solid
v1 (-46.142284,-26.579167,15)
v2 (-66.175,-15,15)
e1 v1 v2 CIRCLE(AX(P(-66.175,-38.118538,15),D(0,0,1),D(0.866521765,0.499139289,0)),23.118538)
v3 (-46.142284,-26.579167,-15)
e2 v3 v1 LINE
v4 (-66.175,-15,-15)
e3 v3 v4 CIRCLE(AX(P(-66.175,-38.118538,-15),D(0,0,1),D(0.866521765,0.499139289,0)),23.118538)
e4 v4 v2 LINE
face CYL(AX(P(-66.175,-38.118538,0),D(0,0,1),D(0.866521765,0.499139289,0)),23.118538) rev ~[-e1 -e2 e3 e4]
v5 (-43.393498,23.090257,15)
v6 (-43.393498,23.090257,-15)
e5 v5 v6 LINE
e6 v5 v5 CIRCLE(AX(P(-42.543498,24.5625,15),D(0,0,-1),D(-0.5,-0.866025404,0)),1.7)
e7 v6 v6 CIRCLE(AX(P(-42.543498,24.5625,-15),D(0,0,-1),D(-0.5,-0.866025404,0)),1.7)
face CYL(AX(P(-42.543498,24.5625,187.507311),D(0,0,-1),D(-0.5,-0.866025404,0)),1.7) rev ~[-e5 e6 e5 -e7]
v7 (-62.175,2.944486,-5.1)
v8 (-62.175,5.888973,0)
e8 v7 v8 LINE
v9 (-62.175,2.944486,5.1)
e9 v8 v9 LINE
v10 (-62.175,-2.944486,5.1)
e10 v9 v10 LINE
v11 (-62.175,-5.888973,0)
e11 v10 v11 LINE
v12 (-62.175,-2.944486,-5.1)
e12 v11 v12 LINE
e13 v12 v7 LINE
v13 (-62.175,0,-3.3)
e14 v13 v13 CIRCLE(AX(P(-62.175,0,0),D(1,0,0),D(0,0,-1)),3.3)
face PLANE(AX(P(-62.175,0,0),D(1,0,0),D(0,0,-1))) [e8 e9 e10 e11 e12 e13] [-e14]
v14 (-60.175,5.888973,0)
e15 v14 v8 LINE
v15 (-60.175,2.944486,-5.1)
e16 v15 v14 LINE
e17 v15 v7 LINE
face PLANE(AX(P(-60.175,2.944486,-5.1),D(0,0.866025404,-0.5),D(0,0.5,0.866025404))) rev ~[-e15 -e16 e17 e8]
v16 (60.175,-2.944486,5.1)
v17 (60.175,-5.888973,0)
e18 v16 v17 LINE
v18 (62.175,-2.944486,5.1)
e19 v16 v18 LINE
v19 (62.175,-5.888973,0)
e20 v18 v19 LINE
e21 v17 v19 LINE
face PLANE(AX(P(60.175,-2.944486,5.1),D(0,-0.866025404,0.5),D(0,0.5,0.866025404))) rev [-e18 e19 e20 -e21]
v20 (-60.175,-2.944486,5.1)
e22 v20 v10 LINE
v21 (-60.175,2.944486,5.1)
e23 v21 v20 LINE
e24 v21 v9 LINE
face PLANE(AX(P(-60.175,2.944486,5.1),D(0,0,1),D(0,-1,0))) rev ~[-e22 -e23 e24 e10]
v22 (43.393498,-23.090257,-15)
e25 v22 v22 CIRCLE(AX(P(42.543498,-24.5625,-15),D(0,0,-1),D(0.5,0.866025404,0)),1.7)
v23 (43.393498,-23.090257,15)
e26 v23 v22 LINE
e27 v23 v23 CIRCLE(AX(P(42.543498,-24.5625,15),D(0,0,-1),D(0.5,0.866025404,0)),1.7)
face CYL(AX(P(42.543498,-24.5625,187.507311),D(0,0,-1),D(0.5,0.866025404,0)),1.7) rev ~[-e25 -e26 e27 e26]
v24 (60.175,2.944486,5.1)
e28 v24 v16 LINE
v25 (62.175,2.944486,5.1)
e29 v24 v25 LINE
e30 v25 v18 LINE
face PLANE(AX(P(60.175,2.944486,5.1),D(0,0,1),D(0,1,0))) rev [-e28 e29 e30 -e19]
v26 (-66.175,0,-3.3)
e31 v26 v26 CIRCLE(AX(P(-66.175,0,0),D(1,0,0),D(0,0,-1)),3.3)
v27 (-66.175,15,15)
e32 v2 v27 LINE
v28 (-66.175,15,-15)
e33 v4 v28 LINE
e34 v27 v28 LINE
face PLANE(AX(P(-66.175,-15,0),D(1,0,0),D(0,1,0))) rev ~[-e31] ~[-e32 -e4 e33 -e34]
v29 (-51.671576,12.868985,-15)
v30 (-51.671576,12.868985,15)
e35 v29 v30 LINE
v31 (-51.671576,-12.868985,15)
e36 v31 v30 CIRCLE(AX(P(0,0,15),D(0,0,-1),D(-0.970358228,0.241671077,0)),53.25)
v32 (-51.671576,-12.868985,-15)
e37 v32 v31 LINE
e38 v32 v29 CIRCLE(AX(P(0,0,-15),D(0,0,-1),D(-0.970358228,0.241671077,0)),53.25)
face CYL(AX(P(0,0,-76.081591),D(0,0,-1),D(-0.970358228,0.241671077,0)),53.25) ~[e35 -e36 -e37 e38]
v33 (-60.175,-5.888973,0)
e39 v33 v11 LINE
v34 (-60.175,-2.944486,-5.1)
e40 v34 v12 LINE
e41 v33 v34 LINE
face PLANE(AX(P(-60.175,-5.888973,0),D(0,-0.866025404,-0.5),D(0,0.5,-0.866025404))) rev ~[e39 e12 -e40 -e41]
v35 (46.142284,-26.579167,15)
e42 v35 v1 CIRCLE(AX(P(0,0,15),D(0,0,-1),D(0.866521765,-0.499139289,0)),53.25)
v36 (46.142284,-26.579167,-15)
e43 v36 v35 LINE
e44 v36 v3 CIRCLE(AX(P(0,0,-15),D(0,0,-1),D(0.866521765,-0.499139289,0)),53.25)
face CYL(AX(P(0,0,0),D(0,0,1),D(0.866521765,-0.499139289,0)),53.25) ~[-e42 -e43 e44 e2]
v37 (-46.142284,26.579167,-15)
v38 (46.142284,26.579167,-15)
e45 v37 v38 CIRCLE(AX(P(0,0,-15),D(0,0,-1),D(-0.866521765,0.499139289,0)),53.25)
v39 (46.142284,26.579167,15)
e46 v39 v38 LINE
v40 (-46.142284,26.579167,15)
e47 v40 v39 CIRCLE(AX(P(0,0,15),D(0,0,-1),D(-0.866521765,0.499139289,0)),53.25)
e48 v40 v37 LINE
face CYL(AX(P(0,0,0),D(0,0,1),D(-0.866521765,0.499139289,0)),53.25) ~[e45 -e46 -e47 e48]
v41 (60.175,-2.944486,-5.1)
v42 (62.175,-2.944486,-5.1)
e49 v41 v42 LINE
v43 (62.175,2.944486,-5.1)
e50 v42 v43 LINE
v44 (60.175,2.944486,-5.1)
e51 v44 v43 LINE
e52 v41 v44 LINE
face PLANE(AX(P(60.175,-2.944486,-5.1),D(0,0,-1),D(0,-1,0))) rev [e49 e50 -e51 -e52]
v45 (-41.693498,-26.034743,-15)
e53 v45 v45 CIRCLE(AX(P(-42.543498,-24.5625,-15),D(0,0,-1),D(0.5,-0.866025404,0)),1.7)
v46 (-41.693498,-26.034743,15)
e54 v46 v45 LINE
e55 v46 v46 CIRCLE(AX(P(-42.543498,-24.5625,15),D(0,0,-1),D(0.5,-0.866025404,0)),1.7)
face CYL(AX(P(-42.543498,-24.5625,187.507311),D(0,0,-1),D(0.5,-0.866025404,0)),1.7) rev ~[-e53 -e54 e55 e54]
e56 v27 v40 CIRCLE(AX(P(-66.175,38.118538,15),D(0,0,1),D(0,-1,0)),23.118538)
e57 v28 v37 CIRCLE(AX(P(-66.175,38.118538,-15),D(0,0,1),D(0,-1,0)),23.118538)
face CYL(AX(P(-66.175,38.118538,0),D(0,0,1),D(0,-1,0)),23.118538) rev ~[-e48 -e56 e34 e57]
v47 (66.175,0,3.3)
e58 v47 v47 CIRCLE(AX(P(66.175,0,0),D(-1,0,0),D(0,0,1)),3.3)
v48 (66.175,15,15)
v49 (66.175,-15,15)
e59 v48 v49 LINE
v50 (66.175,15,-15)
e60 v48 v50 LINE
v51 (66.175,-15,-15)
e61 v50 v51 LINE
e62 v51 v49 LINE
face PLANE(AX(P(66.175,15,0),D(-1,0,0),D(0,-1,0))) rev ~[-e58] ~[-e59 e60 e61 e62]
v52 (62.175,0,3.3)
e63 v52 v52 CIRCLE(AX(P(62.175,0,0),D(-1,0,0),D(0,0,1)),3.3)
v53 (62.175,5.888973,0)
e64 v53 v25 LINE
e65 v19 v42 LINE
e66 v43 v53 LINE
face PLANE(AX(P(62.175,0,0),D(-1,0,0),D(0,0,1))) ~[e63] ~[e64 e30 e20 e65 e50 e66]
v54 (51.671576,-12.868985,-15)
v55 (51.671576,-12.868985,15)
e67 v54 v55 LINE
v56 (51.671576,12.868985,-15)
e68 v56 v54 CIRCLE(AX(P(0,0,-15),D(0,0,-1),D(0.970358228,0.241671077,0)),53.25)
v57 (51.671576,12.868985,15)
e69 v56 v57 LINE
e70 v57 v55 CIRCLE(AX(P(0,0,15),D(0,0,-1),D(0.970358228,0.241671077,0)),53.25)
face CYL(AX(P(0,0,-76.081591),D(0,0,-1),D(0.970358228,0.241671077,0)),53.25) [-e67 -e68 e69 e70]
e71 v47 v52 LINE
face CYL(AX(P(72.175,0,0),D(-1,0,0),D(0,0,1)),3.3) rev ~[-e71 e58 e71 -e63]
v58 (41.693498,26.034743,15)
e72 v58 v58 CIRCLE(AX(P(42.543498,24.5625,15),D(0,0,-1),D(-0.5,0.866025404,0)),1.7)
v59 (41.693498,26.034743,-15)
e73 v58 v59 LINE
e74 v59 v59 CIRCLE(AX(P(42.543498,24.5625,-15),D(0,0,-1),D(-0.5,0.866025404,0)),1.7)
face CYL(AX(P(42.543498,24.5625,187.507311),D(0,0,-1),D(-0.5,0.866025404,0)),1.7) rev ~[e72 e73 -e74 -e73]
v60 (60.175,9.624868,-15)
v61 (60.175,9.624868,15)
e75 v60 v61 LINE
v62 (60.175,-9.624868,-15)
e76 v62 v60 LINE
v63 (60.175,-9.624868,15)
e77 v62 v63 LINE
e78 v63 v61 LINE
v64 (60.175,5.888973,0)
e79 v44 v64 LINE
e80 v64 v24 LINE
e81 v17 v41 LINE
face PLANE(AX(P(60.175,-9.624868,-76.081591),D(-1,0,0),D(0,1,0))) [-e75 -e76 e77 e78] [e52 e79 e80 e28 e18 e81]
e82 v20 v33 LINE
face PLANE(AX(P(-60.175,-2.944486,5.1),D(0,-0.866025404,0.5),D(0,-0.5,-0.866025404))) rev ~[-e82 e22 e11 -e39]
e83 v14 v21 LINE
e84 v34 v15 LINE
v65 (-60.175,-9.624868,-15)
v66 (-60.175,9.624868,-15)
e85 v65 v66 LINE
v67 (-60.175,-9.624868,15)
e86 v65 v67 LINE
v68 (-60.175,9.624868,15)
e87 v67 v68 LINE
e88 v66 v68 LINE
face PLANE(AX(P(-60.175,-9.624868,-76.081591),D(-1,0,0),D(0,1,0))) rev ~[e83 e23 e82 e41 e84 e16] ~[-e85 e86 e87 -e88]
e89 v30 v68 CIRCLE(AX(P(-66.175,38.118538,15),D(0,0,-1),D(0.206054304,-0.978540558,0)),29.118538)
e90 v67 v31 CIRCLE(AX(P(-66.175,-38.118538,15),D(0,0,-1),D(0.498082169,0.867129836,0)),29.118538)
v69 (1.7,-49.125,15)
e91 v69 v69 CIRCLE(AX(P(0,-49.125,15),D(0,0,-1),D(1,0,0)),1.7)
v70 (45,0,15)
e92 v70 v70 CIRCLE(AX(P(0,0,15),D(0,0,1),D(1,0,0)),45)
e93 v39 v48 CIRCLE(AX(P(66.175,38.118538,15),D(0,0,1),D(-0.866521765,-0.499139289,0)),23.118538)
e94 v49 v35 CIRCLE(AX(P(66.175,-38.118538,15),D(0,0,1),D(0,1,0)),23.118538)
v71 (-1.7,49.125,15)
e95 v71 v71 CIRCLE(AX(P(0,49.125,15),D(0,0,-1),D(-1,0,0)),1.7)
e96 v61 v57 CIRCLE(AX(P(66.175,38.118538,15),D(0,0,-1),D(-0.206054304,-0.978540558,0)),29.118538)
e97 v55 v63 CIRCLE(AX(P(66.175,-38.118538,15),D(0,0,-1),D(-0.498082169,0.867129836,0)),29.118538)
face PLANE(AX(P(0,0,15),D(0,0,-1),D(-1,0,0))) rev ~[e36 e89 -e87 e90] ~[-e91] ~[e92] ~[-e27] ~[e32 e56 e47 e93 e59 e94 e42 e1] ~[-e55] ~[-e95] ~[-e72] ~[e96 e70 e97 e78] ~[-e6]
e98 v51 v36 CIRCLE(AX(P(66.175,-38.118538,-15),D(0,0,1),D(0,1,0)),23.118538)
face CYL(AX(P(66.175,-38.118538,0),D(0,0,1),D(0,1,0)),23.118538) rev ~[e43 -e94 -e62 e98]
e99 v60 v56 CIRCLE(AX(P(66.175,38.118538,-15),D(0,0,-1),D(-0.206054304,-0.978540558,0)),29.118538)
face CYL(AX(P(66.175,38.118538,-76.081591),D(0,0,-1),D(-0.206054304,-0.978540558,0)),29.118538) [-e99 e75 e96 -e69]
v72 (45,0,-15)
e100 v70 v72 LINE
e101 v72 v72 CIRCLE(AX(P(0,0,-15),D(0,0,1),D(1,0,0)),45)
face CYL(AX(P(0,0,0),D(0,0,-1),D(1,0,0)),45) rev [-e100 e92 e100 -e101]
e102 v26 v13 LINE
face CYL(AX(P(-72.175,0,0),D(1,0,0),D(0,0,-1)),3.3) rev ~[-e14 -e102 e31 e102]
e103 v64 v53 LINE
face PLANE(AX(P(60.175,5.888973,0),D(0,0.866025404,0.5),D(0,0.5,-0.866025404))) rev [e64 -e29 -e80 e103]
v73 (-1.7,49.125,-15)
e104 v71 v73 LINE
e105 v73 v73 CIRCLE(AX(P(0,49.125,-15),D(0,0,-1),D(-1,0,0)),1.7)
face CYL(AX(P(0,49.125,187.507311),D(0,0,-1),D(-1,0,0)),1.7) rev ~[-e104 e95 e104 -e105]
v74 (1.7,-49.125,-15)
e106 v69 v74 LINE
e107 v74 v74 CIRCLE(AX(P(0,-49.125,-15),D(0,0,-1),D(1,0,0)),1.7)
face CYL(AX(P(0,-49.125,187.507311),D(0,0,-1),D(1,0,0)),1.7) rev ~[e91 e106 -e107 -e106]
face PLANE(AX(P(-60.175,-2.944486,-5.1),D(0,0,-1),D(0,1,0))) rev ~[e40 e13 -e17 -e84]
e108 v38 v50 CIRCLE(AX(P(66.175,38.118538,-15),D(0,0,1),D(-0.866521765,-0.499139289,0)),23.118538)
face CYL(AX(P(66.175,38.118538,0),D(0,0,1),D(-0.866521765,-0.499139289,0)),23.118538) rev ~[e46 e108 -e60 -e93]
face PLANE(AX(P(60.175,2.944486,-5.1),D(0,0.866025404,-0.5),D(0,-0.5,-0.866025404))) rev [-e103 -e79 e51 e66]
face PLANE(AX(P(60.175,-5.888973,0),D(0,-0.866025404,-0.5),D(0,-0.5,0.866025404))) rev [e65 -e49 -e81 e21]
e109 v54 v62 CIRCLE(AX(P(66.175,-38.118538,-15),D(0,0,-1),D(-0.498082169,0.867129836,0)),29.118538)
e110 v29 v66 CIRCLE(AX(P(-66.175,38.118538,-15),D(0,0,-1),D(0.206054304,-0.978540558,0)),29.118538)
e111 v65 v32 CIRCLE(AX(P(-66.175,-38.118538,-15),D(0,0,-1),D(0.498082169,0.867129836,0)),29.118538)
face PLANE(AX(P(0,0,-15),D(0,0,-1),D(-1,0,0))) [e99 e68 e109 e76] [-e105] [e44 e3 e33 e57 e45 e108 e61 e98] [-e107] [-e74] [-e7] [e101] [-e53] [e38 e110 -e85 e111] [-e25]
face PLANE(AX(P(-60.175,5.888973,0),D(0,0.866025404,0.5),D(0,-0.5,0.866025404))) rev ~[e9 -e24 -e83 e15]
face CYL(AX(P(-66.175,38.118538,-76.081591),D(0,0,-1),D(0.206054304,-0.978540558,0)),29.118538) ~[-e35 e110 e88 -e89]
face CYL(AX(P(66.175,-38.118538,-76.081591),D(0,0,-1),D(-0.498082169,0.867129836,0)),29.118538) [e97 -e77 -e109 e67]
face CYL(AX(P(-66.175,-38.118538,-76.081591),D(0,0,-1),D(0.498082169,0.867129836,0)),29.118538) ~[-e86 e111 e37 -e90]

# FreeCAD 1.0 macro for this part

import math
import FreeCAD as App
import Part
import Sketcher

V = App.Vector
Q = App.Units.Quantity


def add_polygon(sketch, points):
    """Adds a closed chain of lines whose ends are joined by coincident constraints."""
    first, n = sketch.GeometryCount, len(points)
    for a, b in zip(points, points[1:] + points[:1]):
        sketch.addGeometry(Part.LineSegment(App.Vector(*a, 0), App.Vector(*b, 0)), False)
    for i in range(n):
        sketch.addConstraint(Sketcher.Constraint("Coincident", first + i, 2, first + (i + 1) % n, 1))

doc = App.newDocument("Part")
params = doc.addObject("Spreadsheet::Sheet", "Params")
for row, (alias, value) in enumerate([
    ("sketch1_diameter", "90 mm"),
    ("sketch1_height", "30 mm"),
    ("sketch1_radius", "53.25 mm"),
    ("pad1_length", "30 mm"),
    ("sketch2_radius", "53.25 mm"),
    ("sketch3_diameter", "6.6 mm"),
    ("hole_diameter", "6.6 mm"),
    ("hole_depth", "6 mm"),
    ("sketch4_diameter", "6.6 mm"),
    ("hole2_diameter", "6.6 mm"),
    ("hole2_depth", "6 mm"),
    ("sketch5_diameter", "3.4 mm"),
    ("hole3_diameter", "3.4 mm"),
    ("pocket2_length", "2 mm"),
], start=1):
    params.set(f"A{row}", alias)
    params.set(f"B{row}", "=" + value)
    params.setAlias(f"B{row}", alias)

body = doc.addObject("PartDesign::Body", "Body")

# Sketch on XY plane
sketch1 = body.newObject("Sketcher::SketchObject", "Sketch")
sketch1.AttachmentSupport = (doc.getObject("XY_Plane"), [""])
sketch1.MapMode = "FlatFace"
sketch1.addGeometry([
    Part.LineSegment(V(-66.175, 15, 0), V(-66.175, -15, 0)),  # 0
    Part.ArcOfCircle(Part.Circle(V(-66.175, -38.118538, 0), V(0, 0, 1), 23.118538), math.radians(29.943072), math.radians(90)),  # 1
    Part.ArcOfCircle(Part.Circle(V(0, 0, 0), V(0, 0, 1), 53.25), math.radians(-150.056928), math.radians(-29.943072)),  # 2
    Part.ArcOfCircle(Part.Circle(V(66.175, -38.118538, 0), V(0, 0, 1), 23.118538), math.radians(90), math.radians(150.056928)),  # 3
    Part.LineSegment(V(66.175, -15, 0), V(66.175, 15, 0)),  # 4
    Part.ArcOfCircle(Part.Circle(V(66.175, 38.118538, 0), V(0, 0, 1), 23.118538), math.radians(-150.056928), math.radians(-90)),  # 5
    Part.ArcOfCircle(Part.Circle(V(0, 0, 0), V(0, 0, 1), 53.25), math.radians(29.943072), math.radians(150.056928)),  # 6
    Part.ArcOfCircle(Part.Circle(V(-66.175, 38.118538, 0), V(0, 0, 1), 23.118538), math.radians(-90), math.radians(-29.943072)),  # 7
    Part.Circle(V(0, 0, 0), V(0, 0, 1), 45),  # 8
], False)
sketch1.addConstraint([
    Sketcher.Constraint("Coincident", 0, 2, 1, 2),
    Sketcher.Constraint("Tangent", 1, 1, 2, 1),
    Sketcher.Constraint("Tangent", 2, 2, 3, 2),
    Sketcher.Constraint("Coincident", 3, 1, 4, 1),
    Sketcher.Constraint("Coincident", 4, 2, 5, 2),
    Sketcher.Constraint("Tangent", 5, 1, 6, 1),
    Sketcher.Constraint("Tangent", 6, 2, 7, 2),
    Sketcher.Constraint("Coincident", 7, 1, 0, 1),
    Sketcher.Constraint("Vertical", 0),
    Sketcher.Constraint("Vertical", 4),
    Sketcher.Constraint("Coincident", 2, 3, -1, 1),
    Sketcher.Constraint("Coincident", 6, 3, -1, 1),
    Sketcher.Constraint("Coincident", 8, 3, -1, 1),
    Sketcher.Constraint("Equal", 1, 3),
    Sketcher.Constraint("Equal", 3, 5),
    Sketcher.Constraint("Equal", 2, 6),
    Sketcher.Constraint("Equal", 5, 7),
    Sketcher.Constraint("Symmetric", 0, 2, 4, 2, -1, 1),
    Sketcher.Constraint("Horizontal", 1, 3, 3, 3),
    Sketcher.Constraint("Horizontal", 5, 3, 7, 3),
    Sketcher.Constraint("Vertical", 7, 3, 0, 2),
    Sketcher.Constraint("Diameter", 8, 90.0),
    Sketcher.Constraint("DistanceY", 0, 2, 0, 1, 30.0),
    Sketcher.Constraint("Radius", 2, 53.25),
    Sketcher.Constraint("DistanceX", 1, 3, 3, 3, 132.35),
])
sketch1.setExpression("Constraints[21]", "Params.sketch1_diameter")
sketch1.setExpression("Constraints[22]", "Params.sketch1_height")
sketch1.setExpression("Constraints[23]", "Params.sketch1_radius")
pad1 = body.newObject("PartDesign::Pad", "Pad")
pad1.Profile = sketch1
pad1.setExpression("Length", "Params.pad1_length")
pad1.Midplane = True

# Sketch on XY plane
sketch2 = body.newObject("Sketcher::SketchObject", "Sketch001")
sketch2.AttachmentSupport = (doc.getObject("XY_Plane"), [""])
sketch2.MapMode = "FlatFace"
sketch2.AttachmentOffset = App.Placement(V(0, 0, 15), App.Rotation())
sketch2.addGeometry([
    Part.LineSegment(V(-60.175, 9.624868, 0), V(-60.175, -9.624868, 0)),  # 0
    Part.ArcOfCircle(Part.Circle(V(-66.175, -38.118538, 0), V(0, 0, 1), 29.118538), math.radians(60.126802), math.radians(78.108776)),  # 1
    Part.ArcOfCircle(Part.Circle(V(0, 0, 0), V(0, 0, 1), 53.25), math.radians(166.01481), math.radians(193.98519)),  # 2
    Part.ArcOfCircle(Part.Circle(V(-66.175, 38.118538, 0), V(0, 0, 1), 29.118538), math.radians(-78.108776), math.radians(-60.126802)),  # 3
    Part.LineSegment(V(60.175, -9.624868, 0), V(60.175, 9.624868, 0)),  # 4
    Part.ArcOfCircle(Part.Circle(V(66.175, 38.118538, 0), V(0, 0, 1), 29.118538), math.radians(-119.873198), math.radians(-101.891224)),  # 5
    Part.ArcOfCircle(Part.Circle(V(0, 0, 0), V(0, 0, 1), 53.25), math.radians(-13.98519), math.radians(13.98519)),  # 6
    Part.ArcOfCircle(Part.Circle(V(66.175, -38.118538, 0), V(0, 0, 1), 29.118538), math.radians(101.891224), math.radians(119.873198)),  # 7
], False)
sketch2.addConstraint([
    Sketcher.Constraint("Coincident", 0, 2, 1, 2),
    Sketcher.Constraint("Coincident", 1, 1, 2, 2),
    Sketcher.Constraint("Coincident", 2, 1, 3, 2),
    Sketcher.Constraint("Coincident", 3, 1, 0, 1),
    Sketcher.Constraint("Coincident", 4, 2, 5, 2),
    Sketcher.Constraint("Coincident", 5, 1, 6, 2),
    Sketcher.Constraint("Coincident", 6, 1, 7, 2),
    Sketcher.Constraint("Coincident", 7, 1, 4, 1),
    Sketcher.Constraint("Vertical", 0),
    Sketcher.Constraint("Vertical", 4),
    Sketcher.Constraint("Coincident", 2, 3, -1, 1),
    Sketcher.Constraint("Coincident", 6, 3, -1, 1),
    Sketcher.Constraint("Equal", 1, 3),
    Sketcher.Constraint("Equal", 3, 5),
    Sketcher.Constraint("Equal", 2, 6),
    Sketcher.Constraint("Equal", 5, 7),
    Sketcher.Constraint("Symmetric", 1, 3, 5, 3, -1, 1),
    Sketcher.Constraint("Symmetric", 3, 3, 7, 3, -1, 1),
    Sketcher.Constraint("Symmetric", 3, 3, 5, 3, -2),
    Sketcher.Constraint("Horizontal", 3, 1, 4, 2),
    Sketcher.Constraint("Radius", 2, 53.25),
    Sketcher.Constraint("DistanceX", 1, 3, 0, 2, 6.0),
    Sketcher.Constraint("DistanceX", 3, 3, 5, 3, 132.35),
    Sketcher.Constraint("Radius", 1, 29.118538),
    Sketcher.Constraint("DistanceY", 0, 2, 0, 1, 19.249735),
])
sketch2.setExpression("Constraints[20]", "Params.sketch2_radius")
pocket1 = body.newObject("PartDesign::Pocket", "Pocket")
pocket1.Profile = sketch2
pocket1.Type = "ThroughAll"
pocket1.Midplane = True

# Sketch on YZ plane
sketch3 = body.newObject("Sketcher::SketchObject", "Sketch002")
sketch3.AttachmentSupport = (doc.getObject("YZ_Plane"), [""])
sketch3.MapMode = "FlatFace"
sketch3.AttachmentOffset = App.Placement(V(0, 0, -66.175), App.Rotation())
sketch3.addGeometry(Part.Circle(V(0, 0, 0), V(0, 0, 1), 3.3), False)
sketch3.addConstraint([
    Sketcher.Constraint("Coincident", 0, 3, -1, 1),
    Sketcher.Constraint("Diameter", 0, 6.6),
])
sketch3.setExpression("Constraints[1]", "Params.sketch3_diameter")
doc.recompute()
hole = body.newObject("PartDesign::Hole", "Hole")
hole.Profile = sketch3
hole.ThreadType = "None"
hole.setExpression("Diameter", "Params.hole_diameter")
hole.DepthType = "Dimension"
hole.setExpression("Depth", "Params.hole_depth")
hole.DrillPoint = "Angled"
hole.DrillPointAngle = 118
hole.Reversed = True

# Sketch on YZ plane
sketch4 = body.newObject("Sketcher::SketchObject", "Sketch003")
sketch4.AttachmentSupport = (doc.getObject("YZ_Plane"), [""])
sketch4.MapMode = "FlatFace"
sketch4.AttachmentOffset = App.Placement(V(0, 0, 66.175), App.Rotation())
sketch4.addGeometry(Part.Circle(V(0, 0, 0), V(0, 0, 1), 3.3), False)
sketch4.addConstraint([
    Sketcher.Constraint("Coincident", 0, 3, -1, 1),
    Sketcher.Constraint("Diameter", 0, 6.6),
])
sketch4.setExpression("Constraints[1]", "Params.sketch4_diameter")
doc.recompute()
hole2 = body.newObject("PartDesign::Hole", "Hole001")
hole2.Profile = sketch4
hole2.ThreadType = "None"
hole2.setExpression("Diameter", "Params.hole2_diameter")
hole2.DepthType = "Dimension"
hole2.setExpression("Depth", "Params.hole2_depth")
hole2.DrillPoint = "Angled"
hole2.DrillPointAngle = 118

# Sketch on XY plane
sketch5 = body.newObject("Sketcher::SketchObject", "Sketch004")
sketch5.AttachmentSupport = (doc.getObject("XY_Plane"), [""])
sketch5.MapMode = "FlatFace"
sketch5.AttachmentOffset = App.Placement(V(0, 0, 15), App.Rotation())
sketch5.addGeometry(Part.Circle(V(0, 49.125, 0), V(0, 0, 1), 1.7), False)
sketch5.addConstraint([
    Sketcher.Constraint("PointOnObject", 0, 3, -2),
    Sketcher.Constraint("Diameter", 0, 3.4),
    Sketcher.Constraint("DistanceY", -1, 1, 0, 3, 49.125),
])
sketch5.setExpression("Constraints[1]", "Params.sketch5_diameter")
doc.recompute()
hole3 = body.newObject("PartDesign::Hole", "Hole002")
hole3.Profile = sketch5
hole3.ThreadType = "None"
hole3.setExpression("Diameter", "Params.hole3_diameter")
hole3.DepthType = "ThroughAll"
doc.recompute()

polarpattern = body.newObject("PartDesign::PolarPattern", "PolarPattern")
polarpattern.Originals = [hole3]
polarpattern.Axis = (doc.getObject("Z_Axis"), [""])
polarpattern.Angle = 360
polarpattern.Occurrences = 6
body.Tip = polarpattern

# Sketch on YZ plane
sketch6 = body.newObject("Sketcher::SketchObject", "Sketch005")
sketch6.AttachmentSupport = (doc.getObject("YZ_Plane"), [""])
sketch6.MapMode = "FlatFace"
sketch6.AttachmentOffset = App.Placement(V(0, 0, -60.175), App.Rotation())
add_polygon(sketch6, [(5.888973, 0), (2.944486, 5.1), (-2.944486, 5.1), (-5.888973, 0), (-2.944486, -5.1), (2.944486, -5.1)])  # lines 0-5
sketch6.addConstraint([
    Sketcher.Constraint("Horizontal", 1),
    Sketcher.Constraint("Horizontal", 4),
    Sketcher.Constraint("Symmetric", 0, 2, 3, 2, -1, 1),
    Sketcher.Constraint("Symmetric", 2, 2, 5, 2, -1, 1),
    Sketcher.Constraint("PointOnObject", 2, 2, -1),
    Sketcher.Constraint("Parallel", 2, 5),
    Sketcher.Constraint("Vertical", 1, 2, 3, 2),
    Sketcher.Constraint("Angle", 0, Q("120 deg")),
    Sketcher.Constraint("DistanceY", -1, 1, 0, 2, 5.1),
    Sketcher.Constraint("DistanceX", 1, 2, 1, 1, 5.888973),
])
pocket2 = body.newObject("PartDesign::Pocket", "Pocket001")
pocket2.Profile = sketch6
pocket2.setExpression("Length", "Params.pocket2_length")
doc.recompute()

mirrored = body.newObject("PartDesign::Mirrored", "Mirrored")
mirrored.Originals = [pocket2]
mirrored.MirrorPlane = (doc.getObject("YZ_Plane"), [""])
body.Tip = mirrored

doc.recompute()
